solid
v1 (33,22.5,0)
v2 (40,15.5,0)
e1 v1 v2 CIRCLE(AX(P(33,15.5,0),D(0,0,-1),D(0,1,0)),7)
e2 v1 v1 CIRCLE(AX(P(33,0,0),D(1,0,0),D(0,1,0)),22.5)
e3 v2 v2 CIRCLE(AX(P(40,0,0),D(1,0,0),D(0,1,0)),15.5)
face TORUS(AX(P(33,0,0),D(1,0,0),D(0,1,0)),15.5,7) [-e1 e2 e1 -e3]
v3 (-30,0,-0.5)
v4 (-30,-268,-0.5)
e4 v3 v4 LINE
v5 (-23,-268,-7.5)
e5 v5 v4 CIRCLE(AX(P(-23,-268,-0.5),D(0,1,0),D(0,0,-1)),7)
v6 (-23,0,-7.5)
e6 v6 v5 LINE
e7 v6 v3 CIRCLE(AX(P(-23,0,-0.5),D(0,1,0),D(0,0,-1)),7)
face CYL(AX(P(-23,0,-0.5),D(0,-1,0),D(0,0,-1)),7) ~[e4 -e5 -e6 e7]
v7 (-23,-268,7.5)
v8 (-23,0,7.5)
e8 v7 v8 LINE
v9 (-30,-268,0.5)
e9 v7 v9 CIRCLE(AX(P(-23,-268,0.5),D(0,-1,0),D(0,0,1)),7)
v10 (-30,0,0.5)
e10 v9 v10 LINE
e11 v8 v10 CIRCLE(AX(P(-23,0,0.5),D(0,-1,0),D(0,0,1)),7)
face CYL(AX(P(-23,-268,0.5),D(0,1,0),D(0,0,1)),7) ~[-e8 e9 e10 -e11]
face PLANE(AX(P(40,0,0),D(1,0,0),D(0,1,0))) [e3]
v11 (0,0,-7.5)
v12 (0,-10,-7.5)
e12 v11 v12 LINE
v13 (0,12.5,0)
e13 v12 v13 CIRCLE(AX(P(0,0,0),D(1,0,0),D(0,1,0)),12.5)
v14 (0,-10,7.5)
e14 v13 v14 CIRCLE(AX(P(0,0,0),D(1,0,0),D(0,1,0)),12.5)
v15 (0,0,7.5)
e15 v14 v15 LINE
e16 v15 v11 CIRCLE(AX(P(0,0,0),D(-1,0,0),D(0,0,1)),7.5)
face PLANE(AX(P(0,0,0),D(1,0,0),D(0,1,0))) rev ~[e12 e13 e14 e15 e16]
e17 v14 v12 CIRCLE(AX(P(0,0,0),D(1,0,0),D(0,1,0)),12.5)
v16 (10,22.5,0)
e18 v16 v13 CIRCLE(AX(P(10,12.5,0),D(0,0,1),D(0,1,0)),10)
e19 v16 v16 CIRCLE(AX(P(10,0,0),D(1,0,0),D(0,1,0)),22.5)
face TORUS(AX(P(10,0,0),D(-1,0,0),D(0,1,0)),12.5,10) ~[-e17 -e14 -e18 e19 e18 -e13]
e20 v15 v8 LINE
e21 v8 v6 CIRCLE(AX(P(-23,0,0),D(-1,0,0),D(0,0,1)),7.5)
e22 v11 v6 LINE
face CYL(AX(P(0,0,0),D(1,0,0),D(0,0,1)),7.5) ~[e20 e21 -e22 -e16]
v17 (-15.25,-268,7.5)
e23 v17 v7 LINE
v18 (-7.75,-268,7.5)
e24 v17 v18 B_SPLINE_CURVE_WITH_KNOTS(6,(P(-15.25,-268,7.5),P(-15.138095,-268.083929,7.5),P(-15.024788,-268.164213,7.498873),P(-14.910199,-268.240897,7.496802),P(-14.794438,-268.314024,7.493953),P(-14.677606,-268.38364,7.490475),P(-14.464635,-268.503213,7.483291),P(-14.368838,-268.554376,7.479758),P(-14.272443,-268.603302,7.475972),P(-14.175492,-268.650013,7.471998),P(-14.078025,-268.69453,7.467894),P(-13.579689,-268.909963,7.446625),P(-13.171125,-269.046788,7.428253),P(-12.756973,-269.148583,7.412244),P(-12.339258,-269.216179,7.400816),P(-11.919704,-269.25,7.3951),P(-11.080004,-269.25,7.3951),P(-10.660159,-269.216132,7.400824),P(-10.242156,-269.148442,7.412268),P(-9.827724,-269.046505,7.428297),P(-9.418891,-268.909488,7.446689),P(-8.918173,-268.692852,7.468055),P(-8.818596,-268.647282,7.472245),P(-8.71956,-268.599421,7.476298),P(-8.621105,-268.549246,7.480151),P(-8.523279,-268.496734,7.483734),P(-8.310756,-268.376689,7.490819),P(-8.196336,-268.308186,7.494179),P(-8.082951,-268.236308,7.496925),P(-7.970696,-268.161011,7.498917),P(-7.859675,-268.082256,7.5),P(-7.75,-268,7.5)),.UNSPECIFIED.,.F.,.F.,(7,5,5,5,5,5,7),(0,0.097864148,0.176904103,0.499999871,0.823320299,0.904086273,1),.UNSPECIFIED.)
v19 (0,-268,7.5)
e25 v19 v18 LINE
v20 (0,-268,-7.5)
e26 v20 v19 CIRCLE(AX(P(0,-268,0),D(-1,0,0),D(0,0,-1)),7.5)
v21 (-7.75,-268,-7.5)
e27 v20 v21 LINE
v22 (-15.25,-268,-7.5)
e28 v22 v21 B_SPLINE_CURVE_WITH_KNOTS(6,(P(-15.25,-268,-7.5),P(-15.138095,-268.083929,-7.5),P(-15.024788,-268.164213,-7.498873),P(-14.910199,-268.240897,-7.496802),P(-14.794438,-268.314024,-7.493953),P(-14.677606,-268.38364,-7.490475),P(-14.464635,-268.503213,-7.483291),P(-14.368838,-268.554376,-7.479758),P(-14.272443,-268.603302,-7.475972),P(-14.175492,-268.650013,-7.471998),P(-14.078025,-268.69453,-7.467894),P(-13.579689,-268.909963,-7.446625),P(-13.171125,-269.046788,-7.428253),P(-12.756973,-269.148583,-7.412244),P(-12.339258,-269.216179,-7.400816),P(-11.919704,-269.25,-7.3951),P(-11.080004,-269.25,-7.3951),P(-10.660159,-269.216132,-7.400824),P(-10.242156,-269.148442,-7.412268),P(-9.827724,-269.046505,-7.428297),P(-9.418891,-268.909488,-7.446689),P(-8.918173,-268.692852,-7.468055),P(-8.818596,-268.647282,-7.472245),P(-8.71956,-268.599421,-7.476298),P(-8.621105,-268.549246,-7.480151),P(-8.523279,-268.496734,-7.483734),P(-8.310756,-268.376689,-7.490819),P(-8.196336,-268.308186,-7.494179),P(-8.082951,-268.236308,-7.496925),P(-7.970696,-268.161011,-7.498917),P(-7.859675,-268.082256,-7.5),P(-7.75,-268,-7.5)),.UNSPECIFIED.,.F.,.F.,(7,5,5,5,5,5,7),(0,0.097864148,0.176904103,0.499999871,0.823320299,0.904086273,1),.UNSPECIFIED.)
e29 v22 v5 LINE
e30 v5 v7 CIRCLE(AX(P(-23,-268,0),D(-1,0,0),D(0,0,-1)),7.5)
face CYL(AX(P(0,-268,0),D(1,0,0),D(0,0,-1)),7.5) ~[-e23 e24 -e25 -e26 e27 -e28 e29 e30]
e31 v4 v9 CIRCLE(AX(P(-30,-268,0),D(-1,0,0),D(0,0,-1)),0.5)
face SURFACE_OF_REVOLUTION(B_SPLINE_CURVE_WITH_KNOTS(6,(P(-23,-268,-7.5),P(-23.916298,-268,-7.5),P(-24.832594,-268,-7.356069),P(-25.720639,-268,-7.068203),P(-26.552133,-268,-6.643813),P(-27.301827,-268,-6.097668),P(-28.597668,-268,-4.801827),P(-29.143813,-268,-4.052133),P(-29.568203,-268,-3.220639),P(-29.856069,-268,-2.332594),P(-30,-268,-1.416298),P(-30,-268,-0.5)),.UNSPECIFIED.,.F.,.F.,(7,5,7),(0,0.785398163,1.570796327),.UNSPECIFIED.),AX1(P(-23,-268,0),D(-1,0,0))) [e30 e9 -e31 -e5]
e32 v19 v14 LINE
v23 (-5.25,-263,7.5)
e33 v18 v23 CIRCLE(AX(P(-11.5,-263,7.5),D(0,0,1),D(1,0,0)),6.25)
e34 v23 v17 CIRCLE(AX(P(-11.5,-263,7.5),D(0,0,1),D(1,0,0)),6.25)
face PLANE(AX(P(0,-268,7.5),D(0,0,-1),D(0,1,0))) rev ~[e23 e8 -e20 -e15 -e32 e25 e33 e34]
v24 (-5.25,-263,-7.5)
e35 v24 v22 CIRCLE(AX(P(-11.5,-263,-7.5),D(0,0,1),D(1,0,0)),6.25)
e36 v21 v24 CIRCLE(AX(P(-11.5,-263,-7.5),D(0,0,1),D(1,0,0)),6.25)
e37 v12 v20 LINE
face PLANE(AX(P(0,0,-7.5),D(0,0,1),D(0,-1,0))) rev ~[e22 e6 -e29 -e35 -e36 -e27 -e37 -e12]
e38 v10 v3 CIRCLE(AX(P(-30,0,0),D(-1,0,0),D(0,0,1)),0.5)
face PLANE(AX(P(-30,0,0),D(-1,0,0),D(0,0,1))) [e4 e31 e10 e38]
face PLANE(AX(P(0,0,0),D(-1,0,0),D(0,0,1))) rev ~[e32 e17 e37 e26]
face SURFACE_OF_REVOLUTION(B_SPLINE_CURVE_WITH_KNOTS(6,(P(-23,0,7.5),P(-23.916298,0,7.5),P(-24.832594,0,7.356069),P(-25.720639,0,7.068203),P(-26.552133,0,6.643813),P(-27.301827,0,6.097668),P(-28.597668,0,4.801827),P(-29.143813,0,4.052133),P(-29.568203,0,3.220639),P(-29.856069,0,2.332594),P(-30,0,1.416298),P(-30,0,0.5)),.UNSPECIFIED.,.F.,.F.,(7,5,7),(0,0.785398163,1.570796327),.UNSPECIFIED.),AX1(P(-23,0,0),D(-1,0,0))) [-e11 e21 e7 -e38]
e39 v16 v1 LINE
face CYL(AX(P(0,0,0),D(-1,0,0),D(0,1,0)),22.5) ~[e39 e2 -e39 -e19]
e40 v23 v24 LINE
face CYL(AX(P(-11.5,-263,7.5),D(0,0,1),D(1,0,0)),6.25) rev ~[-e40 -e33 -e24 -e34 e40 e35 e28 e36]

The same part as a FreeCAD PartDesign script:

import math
import FreeCAD as App
import Part
import Sketcher
from FreeCAD import Vector
Q = App.Units.Quantity


def edges_at(feature, points):
    """Names of the edges that pass closest to the given points."""
    edges = feature.Shape.Edges
    near = lambda p: min(range(len(edges)), key=lambda i: edges[i].distToShape(Part.Vertex(*p))[0])
    return sorted({f"Edge{near(p) + 1}" for p in points})

doc = App.newDocument("Part")
body = doc.addObject("PartDesign::Body", "Body")

# Sketch on YZ plane
sketch1 = doc.addObject("Sketcher::SketchObject", "Sketch")
body.addObject(sketch1)
sketch1.AttachmentSupport = (doc.YZ_Plane, [""])
sketch1.MapMode = "FlatFace"
sketch1.addGeometry(Part.Circle(Vector(0, 0, 0), Vector(0, 0, 1), 22), False)
sketch1.addConstraint([
    Sketcher.Constraint("Coincident", 0, 3, -1, 1),
    Sketcher.Constraint("Diameter", 0, Q("45 mm")),
])
pad1 = doc.addObject("PartDesign::Pad", "Pad")
body.addObject(pad1)
pad1.Profile = sketch1
pad1.Length = 40
doc.recompute()

fillet = doc.addObject("PartDesign::Fillet", "Fillet")
body.addObject(fillet)
fillet.Base = (pad1, edges_at(pad1, [(0, -22.5, 0)]))
fillet.Radius = 10

# Sketch on YZ plane
sketch2 = doc.addObject("Sketcher::SketchObject", "Sketch001")
body.addObject(sketch2)
sketch2.AttachmentSupport = (doc.YZ_Plane, [""])
sketch2.MapMode = "FlatFace"
sketch2.addGeometry([
    Part.ArcOfCircle(Part.Circle(Vector(0, 0, 0), Vector(0, 0, 1), 8), math.radians(-90), math.radians(90)),
    Part.LineSegment(Vector(0, -8, 0), Vector(-268, -8, 0)),
    Part.ArcOfCircle(Part.Circle(Vector(-268, 0, 0), Vector(0, 0, 1), 8), math.radians(90), math.radians(270)),
    Part.LineSegment(Vector(-268, 8, 0), Vector(0, 8, 0)),
], False)
sketch2.addConstraint([
    Sketcher.Constraint("Tangent", 0, 1, 1, 1),
    Sketcher.Constraint("Tangent", 1, 2, 2, 2),
    Sketcher.Constraint("Tangent", 2, 1, 3, 1),
    Sketcher.Constraint("Tangent", 3, 2, 0, 2),
    Sketcher.Constraint("Horizontal", 1),
    Sketcher.Constraint("Horizontal", 3),
    Sketcher.Constraint("Coincident", 0, 3, -1, 1),
    Sketcher.Constraint("Radius", 0, Q("7.5 mm")),
    Sketcher.Constraint("DistanceX", 1, 2, 1, 1, Q("268 mm")),
])
pad2 = doc.addObject("PartDesign::Pad", "Pad001")
body.addObject(pad2)
pad2.Profile = sketch2
pad2.Length = 30
pad2.Reversed = True
doc.recompute()

fillet2 = doc.addObject("PartDesign::Fillet", "Fillet001")
body.addObject(fillet2)
fillet2.Base = (pad2, edges_at(pad2, [
    (-30, -134, 7.5),
    (-30, 7.5, 0),
    (-30, -134, -7.5),
    (-30, -275.5, 0),
    (40, -22.5, 0),
]))
fillet2.Radius = 7

# Sketch on XY plane
sketch3 = doc.addObject("Sketcher::SketchObject", "Sketch002")
body.addObject(sketch3)
sketch3.AttachmentSupport = (doc.XY_Plane, [""])
sketch3.MapMode = "FlatFace"
sketch3.AttachmentOffset = App.Placement(Vector(0, 0, 7.5), App.Rotation())
sketch3.addGeometry(Part.Circle(Vector(-12, -263, 0), Vector(0, 0, 1), 6), False)
sketch3.addConstraint([
    Sketcher.Constraint("Diameter", 0, Q("12.5 mm")),
    Sketcher.Constraint("DistanceY", 0, 3, -1, 1, Q("263 mm")),
    Sketcher.Constraint("DistanceX", 0, 3, -1, 1, Q("11.5 mm")),
])
pocket1 = doc.addObject("PartDesign::Pocket", "Pocket")
body.addObject(pocket1)
pocket1.Profile = sketch3
pocket1.Length = 30

doc.recompute()
